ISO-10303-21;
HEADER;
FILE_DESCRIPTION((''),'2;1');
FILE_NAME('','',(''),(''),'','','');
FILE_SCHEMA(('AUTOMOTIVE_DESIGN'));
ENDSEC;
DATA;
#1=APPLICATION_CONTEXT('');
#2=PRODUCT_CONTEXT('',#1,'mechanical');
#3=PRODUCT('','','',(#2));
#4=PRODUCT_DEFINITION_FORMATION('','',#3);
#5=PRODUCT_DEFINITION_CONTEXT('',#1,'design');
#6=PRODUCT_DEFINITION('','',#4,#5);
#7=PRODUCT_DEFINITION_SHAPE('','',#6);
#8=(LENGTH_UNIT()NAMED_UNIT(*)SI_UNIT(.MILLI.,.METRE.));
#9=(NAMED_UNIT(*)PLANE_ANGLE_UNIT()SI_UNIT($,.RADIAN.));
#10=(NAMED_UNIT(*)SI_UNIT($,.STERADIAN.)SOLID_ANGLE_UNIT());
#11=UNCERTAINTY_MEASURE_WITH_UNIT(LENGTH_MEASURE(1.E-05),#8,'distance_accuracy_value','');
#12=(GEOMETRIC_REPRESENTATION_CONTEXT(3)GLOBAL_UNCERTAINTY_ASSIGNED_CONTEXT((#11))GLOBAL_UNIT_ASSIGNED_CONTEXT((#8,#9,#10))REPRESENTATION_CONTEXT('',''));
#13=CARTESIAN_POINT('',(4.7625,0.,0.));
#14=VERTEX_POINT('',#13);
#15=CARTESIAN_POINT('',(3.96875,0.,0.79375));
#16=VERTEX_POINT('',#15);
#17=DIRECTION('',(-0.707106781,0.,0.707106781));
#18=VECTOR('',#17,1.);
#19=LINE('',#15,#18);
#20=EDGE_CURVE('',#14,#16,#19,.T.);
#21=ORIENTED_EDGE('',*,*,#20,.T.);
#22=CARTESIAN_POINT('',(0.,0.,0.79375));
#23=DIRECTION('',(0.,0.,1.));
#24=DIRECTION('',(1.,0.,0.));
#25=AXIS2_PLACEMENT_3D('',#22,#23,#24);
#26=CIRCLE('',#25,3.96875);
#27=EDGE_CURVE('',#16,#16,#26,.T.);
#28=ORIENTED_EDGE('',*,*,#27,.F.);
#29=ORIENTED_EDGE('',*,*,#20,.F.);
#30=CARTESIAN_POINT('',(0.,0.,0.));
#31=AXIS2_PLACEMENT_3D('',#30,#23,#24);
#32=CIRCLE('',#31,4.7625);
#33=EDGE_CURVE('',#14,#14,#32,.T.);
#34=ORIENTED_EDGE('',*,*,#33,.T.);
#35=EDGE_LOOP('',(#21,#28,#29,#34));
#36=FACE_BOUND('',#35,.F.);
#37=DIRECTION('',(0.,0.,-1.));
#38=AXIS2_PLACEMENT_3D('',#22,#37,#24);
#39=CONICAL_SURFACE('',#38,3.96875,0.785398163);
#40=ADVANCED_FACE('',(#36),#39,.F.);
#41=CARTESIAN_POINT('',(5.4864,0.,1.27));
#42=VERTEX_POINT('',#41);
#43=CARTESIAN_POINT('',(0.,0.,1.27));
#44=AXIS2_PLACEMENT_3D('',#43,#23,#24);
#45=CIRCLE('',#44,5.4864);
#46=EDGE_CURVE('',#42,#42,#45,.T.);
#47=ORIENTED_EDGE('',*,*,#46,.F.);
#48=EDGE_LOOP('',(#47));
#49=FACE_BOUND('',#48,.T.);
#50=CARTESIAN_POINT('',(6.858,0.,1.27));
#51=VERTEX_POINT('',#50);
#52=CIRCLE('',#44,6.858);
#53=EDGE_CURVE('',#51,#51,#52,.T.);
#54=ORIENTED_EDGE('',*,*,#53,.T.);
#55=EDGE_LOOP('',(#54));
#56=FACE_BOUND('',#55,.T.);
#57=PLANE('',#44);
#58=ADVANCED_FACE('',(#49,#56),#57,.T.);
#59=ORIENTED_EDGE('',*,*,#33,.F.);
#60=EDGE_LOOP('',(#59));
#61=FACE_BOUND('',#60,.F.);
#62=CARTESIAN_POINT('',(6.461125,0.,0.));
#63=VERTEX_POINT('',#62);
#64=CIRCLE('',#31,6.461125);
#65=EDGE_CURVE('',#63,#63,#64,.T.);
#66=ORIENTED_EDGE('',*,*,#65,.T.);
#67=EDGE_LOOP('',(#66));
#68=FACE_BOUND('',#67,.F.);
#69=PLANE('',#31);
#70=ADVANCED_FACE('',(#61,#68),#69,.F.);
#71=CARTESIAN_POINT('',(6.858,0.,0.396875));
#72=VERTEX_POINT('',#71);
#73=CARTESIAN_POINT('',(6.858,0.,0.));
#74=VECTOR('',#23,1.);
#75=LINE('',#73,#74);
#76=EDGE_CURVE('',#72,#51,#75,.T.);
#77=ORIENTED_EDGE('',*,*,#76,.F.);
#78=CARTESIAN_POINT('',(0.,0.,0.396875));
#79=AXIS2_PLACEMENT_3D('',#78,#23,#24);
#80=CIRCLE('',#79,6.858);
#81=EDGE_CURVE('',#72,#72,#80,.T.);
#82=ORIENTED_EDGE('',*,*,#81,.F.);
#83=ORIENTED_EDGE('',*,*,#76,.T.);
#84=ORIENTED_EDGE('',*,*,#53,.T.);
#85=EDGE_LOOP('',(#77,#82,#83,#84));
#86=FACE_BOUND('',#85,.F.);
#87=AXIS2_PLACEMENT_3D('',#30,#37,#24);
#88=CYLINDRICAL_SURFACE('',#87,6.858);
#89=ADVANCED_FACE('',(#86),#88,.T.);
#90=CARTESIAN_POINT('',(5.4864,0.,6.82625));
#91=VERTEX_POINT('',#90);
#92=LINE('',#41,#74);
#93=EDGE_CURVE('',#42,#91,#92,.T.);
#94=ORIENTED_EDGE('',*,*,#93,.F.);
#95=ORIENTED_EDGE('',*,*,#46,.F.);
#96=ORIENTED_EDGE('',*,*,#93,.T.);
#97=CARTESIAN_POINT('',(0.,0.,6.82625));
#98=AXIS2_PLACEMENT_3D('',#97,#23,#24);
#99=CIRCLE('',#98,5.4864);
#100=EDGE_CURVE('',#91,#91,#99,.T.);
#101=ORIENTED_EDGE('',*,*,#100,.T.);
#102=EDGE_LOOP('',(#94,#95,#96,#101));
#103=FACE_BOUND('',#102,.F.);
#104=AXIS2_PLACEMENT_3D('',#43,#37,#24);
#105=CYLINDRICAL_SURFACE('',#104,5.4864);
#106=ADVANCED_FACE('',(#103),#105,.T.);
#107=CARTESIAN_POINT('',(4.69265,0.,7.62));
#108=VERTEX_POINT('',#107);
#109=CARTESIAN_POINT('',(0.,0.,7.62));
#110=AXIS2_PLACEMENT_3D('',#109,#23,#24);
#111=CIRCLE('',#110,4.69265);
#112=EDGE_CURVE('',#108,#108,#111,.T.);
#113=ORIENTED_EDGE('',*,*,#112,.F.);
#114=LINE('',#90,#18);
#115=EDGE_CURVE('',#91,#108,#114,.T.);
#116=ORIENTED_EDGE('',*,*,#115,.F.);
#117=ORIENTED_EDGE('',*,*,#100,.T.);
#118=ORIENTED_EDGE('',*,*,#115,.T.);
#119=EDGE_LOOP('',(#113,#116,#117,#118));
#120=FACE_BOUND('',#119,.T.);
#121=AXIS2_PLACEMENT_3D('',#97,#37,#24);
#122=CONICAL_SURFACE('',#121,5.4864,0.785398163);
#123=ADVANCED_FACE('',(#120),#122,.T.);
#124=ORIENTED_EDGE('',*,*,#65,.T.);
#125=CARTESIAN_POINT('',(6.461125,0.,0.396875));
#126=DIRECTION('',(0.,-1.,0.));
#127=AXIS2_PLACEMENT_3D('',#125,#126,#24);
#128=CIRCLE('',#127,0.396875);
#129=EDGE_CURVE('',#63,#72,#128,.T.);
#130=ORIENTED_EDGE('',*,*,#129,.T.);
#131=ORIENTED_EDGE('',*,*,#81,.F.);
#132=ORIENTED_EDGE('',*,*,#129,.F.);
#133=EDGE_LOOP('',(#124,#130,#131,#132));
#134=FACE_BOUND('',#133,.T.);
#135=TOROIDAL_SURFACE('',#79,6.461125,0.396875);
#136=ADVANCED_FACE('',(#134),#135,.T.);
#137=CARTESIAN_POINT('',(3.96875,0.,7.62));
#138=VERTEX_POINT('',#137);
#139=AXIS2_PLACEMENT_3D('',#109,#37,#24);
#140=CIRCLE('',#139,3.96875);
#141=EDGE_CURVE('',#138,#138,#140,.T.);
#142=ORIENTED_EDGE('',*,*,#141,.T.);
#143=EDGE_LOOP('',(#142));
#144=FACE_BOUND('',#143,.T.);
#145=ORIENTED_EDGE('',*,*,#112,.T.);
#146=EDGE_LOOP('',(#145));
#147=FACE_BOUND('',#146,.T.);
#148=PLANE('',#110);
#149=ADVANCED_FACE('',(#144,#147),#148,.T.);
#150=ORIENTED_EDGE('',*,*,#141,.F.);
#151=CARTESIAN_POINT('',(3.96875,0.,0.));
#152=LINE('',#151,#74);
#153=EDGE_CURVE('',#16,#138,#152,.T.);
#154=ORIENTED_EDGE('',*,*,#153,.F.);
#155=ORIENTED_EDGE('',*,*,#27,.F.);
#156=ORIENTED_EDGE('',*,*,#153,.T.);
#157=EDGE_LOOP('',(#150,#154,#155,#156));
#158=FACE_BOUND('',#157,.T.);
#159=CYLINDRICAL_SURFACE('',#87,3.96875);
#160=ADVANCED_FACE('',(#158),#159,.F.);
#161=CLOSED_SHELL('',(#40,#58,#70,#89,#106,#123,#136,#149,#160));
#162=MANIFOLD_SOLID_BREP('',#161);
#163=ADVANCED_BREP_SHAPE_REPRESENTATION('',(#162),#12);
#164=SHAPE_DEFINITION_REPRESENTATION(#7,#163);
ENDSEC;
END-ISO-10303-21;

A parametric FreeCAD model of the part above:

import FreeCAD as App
import Part
import Sketcher
Q = App.Units.Quantity


def edges_at(feature, points):
    """Names of the edges that pass closest to the given points."""
    edges = feature.Shape.Edges
    near = lambda p: min(range(len(edges)), key=lambda i: edges[i].distToShape(Part.Vertex(*p))[0])
    return sorted({f"Edge{near(p) + 1}" for p in points})

doc = App.newDocument("Part")
body = doc.addObject("PartDesign::Body", "Body")

# Sketch on XY plane
sketch1 = body.newObject("Sketcher::SketchObject", "Sketch")
sketch1.AttachmentSupport = (doc.getObject("XY_Plane"), [""])
sketch1.MapMode = "FlatFace"
sketch1.addGeometry(Part.Circle(App.Vector(0, 0, 0), App.Vector(0, 0, 1), 7), False)
sketch1.addConstraint([
    Sketcher.Constraint("Coincident", 0, 3, -1, 1),
    Sketcher.Constraint("Diameter", 0, Q("0.54 in")),
])
pad1 = body.newObject("PartDesign::Pad", "Pad")
pad1.Profile = sketch1
pad1.Length = Q("0.05 in")

# Sketch on XY plane
sketch2 = body.newObject("Sketcher::SketchObject", "Sketch001")
sketch2.AttachmentSupport = (doc.getObject("XY_Plane"), [""])
sketch2.MapMode = "FlatFace"
sketch2.AttachmentOffset = App.Placement(App.Vector(0, 0, 0.05 * 25.4), App.Rotation())
sketch2.addGeometry(Part.Circle(App.Vector(0, 0, 0), App.Vector(0, 0, 1), 5), False)
sketch2.addConstraint([
    Sketcher.Constraint("Coincident", 0, 3, -1, 1),
    Sketcher.Constraint("Diameter", 0, Q("0.432 in")),
])
pad2 = body.newObject("PartDesign::Pad", "Pad001")
pad2.Profile = sketch2
pad2.Length = Q("0.25 in")

# Sketch on XY plane
sketch3 = body.newObject("Sketcher::SketchObject", "Sketch002")
sketch3.AttachmentSupport = (doc.getObject("XY_Plane"), [""])
sketch3.MapMode = "FlatFace"
sketch3.addGeometry(Part.Circle(App.Vector(0, 0, 0), App.Vector(0, 0, 1), 4), False)
sketch3.addConstraint([
    Sketcher.Constraint("Coincident", 0, 3, -1, 1),
    Sketcher.Constraint("Diameter", 0, Q("0.3125 in")),
])
pocket1 = body.newObject("PartDesign::Pocket", "Pocket")
pocket1.Profile = sketch3
pocket1.Length = Q("1 in")
pocket1.Reversed = True
doc.recompute()

chamfer = body.newObject("PartDesign::Chamfer", "Chamfer")
chamfer.Base = (pocket1, edges_at(pocket1, [(-5.486, 0, 7.62), (-3.969, 0, 0)]))
chamfer.Size = Q("0.03125 in")
doc.recompute()

fillet = body.newObject("PartDesign::Fillet", "Fillet")
fillet.Base = (chamfer, edges_at(chamfer, [(-6.858, 0, 0)]))
fillet.Radius = Q("0.015625 in")

doc.recompute()
